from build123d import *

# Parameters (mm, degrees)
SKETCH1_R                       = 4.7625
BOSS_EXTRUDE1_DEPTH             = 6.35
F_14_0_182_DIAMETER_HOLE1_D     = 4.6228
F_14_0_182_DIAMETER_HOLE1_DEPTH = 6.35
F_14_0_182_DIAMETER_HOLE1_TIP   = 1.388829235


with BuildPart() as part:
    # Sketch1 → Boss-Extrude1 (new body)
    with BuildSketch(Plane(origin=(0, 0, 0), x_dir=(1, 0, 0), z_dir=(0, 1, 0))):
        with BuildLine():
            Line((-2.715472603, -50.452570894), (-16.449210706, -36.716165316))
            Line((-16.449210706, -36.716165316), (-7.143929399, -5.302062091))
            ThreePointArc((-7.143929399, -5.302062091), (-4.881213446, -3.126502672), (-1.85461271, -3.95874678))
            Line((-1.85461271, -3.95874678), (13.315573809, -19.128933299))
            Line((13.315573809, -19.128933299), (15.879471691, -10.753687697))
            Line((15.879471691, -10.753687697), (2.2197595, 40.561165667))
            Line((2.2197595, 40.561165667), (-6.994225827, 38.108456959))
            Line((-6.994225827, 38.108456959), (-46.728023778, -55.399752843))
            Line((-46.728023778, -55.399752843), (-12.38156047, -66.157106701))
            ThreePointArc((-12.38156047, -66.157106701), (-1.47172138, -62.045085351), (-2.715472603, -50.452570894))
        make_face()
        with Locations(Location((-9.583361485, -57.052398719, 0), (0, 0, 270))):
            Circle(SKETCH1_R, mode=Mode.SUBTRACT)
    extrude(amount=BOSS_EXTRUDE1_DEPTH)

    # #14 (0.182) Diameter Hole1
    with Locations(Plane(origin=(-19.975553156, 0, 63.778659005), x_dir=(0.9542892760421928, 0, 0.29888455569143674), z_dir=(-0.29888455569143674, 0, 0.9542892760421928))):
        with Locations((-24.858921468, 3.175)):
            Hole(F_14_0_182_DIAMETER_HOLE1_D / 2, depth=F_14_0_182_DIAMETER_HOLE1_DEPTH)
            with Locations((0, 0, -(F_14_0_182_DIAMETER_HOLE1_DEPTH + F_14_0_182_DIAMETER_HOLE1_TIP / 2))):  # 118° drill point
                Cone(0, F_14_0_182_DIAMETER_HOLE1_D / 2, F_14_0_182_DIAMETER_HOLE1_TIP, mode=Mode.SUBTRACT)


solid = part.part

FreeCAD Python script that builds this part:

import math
import FreeCAD as App
import Part
import Sketcher
from FreeCAD import Vector
Q = App.Units.Quantity

doc = App.newDocument("Part")
body = doc.addObject("PartDesign::Body", "Body")

sketch1 = body.newObject("Sketcher::SketchObject", "Sketch")
sketch1.AttachmentSupport = (doc.getObject("XZ_Plane"), [""])
sketch1.MapMode = "FlatFace"
sketch1.addGeometry([
    Part.LineSegment(Vector(-2.7, 50.5, 0), Vector(-16.4, 36.7, 0)),
    Part.LineSegment(Vector(-16.4, 36.7, 0), Vector(-7.1, 5.3, 0)),
    Part.ArcOfCircle(Part.Circle(Vector(-4.1, 6.2, 0), Vector(0, 0, 1), 3.2), math.radians(-163), math.radians(-45)),
    Part.LineSegment(Vector(-1.9, 4, 0), Vector(13.3, 19.1, 0)),
    Part.LineSegment(Vector(13.3, 19.1, 0), Vector(15.9, 10.8, 0)),
    Part.LineSegment(Vector(15.9, 10.8, 0), Vector(2.2, -40.6, 0)),
    Part.LineSegment(Vector(2.2, -40.6, 0), Vector(-7, -38.1, 0)),
    Part.LineSegment(Vector(-7, -38.1, 0), Vector(-46.7, 55.4, 0)),
    Part.LineSegment(Vector(-46.7, 55.4, 0), Vector(-12.4, 66.2, 0)),
    Part.ArcOfCircle(Part.Circle(Vector(-9.6, 57.1, 0), Vector(0, 0, 1), 9.5), math.radians(-44), math.radians(107)),
    Part.Circle(Vector(-9.6, 57.1, 0), Vector(0, 0, 1), 4.8),
], False)
sketch1.addConstraint([
    Sketcher.Constraint("Coincident", 0, 2, 1, 1),
    Sketcher.Constraint("Tangent", 1, 2, 2, 1),
    Sketcher.Constraint("Tangent", 2, 2, 3, 1),
    Sketcher.Constraint("Coincident", 3, 2, 4, 1),
    Sketcher.Constraint("Coincident", 4, 2, 5, 1),
    Sketcher.Constraint("Coincident", 5, 2, 6, 1),
    Sketcher.Constraint("Coincident", 6, 2, 7, 1),
    Sketcher.Constraint("Coincident", 7, 2, 8, 1),
    Sketcher.Constraint("Coincident", 8, 2, 9, 2),
    Sketcher.Constraint("Coincident", 9, 1, 0, 1),
    Sketcher.Constraint("Coincident", 10, 3, 9, 3),
    Sketcher.Constraint("Perpendicular", 5, 6),
    Sketcher.Constraint("Distance", 7, Q("4 in")),
    Sketcher.Constraint("Diameter", 10, Q("0.375 in")),
    Sketcher.Constraint("Angle", 3, Q("45 deg")),
    Sketcher.Constraint("Radius", 2, Q("0.125 in")),
    Sketcher.Constraint("Radius", 9, Q("0.375 in")),
    Sketcher.Constraint("Angle", 1, Q("-73.5 deg")),
    Sketcher.Constraint("Distance", 4, 8.758899),
    Sketcher.Constraint("DistanceY", -1, 1, 9, 3, 57.052399),
    Sketcher.Constraint("DistanceX", 1, 2, 4, 2, 23.023401),
    Sketcher.Constraint("DistanceY", 5, 2, 3, 2, 59.690099),
    Sketcher.Constraint("DistanceX", 8, 2, 10, 3, 2.798199),
    Sketcher.Constraint("Distance", 8, 35.991669),
    Sketcher.Constraint("DistanceY", -1, 1, 2, 3, 6.203811),
    Sketcher.Constraint("DistanceX", 9, 3, -1, 1, 9.583361),
    Sketcher.Constraint("DistanceX", 0, 2, -1, 1, 16.449211),
    Sketcher.Constraint("DistanceX", 1, 2, -1, 1, 7.143929),
    Sketcher.Constraint("DistanceX", -1, 1, 5, 2, 2.219759),
    Sketcher.Constraint("DistanceY", -1, 1, 9, 1, 50.452571),
    Sketcher.Constraint("DistanceX", 2, 3, 3, 2, 17.415251),
    Sketcher.Constraint("DistanceY", 5, 2, 6, 2, 2.452709),
])
pad1 = body.newObject("PartDesign::Pad", "Pad")
pad1.Profile = sketch1
pad1.Length = Q("0.25 in")
pad1.Reversed = True

sketch2 = body.newObject("Sketcher::SketchObject", "Sketch001")
sketch2.Placement = App.Placement(Vector(-19.975553, 0, 63.778659), App.Rotation(Vector(0.954289276, 0, 0.298884556), Vector(0, 1, 0), Vector(-0.298884556, 0, 0.954289276), "ZXY"))
sketch2.addGeometry(Part.Circle(Vector(-24.9, 3.2, 0), Vector(0, 0, 1), 2.3), False)
sketch2.addConstraint([
    Sketcher.Constraint("Diameter", 0, Q("0.182 in")),
    Sketcher.Constraint("DistanceY", -1, 1, 0, 3, Q("0.125 in")),
    Sketcher.Constraint("DistanceX", 0, 3, -1, 1, 24.858921),
])
doc.recompute()
hole = body.newObject("PartDesign::Hole", "Hole")
hole.Profile = sketch2
hole.ThreadType = "None"
hole.Diameter = Q("0.182 in")
hole.DepthType = "Dimension"
hole.Depth = Q("0.25 in")
hole.DrillPoint = "Angled"
hole.DrillPointAngle = 118

doc.recompute()
